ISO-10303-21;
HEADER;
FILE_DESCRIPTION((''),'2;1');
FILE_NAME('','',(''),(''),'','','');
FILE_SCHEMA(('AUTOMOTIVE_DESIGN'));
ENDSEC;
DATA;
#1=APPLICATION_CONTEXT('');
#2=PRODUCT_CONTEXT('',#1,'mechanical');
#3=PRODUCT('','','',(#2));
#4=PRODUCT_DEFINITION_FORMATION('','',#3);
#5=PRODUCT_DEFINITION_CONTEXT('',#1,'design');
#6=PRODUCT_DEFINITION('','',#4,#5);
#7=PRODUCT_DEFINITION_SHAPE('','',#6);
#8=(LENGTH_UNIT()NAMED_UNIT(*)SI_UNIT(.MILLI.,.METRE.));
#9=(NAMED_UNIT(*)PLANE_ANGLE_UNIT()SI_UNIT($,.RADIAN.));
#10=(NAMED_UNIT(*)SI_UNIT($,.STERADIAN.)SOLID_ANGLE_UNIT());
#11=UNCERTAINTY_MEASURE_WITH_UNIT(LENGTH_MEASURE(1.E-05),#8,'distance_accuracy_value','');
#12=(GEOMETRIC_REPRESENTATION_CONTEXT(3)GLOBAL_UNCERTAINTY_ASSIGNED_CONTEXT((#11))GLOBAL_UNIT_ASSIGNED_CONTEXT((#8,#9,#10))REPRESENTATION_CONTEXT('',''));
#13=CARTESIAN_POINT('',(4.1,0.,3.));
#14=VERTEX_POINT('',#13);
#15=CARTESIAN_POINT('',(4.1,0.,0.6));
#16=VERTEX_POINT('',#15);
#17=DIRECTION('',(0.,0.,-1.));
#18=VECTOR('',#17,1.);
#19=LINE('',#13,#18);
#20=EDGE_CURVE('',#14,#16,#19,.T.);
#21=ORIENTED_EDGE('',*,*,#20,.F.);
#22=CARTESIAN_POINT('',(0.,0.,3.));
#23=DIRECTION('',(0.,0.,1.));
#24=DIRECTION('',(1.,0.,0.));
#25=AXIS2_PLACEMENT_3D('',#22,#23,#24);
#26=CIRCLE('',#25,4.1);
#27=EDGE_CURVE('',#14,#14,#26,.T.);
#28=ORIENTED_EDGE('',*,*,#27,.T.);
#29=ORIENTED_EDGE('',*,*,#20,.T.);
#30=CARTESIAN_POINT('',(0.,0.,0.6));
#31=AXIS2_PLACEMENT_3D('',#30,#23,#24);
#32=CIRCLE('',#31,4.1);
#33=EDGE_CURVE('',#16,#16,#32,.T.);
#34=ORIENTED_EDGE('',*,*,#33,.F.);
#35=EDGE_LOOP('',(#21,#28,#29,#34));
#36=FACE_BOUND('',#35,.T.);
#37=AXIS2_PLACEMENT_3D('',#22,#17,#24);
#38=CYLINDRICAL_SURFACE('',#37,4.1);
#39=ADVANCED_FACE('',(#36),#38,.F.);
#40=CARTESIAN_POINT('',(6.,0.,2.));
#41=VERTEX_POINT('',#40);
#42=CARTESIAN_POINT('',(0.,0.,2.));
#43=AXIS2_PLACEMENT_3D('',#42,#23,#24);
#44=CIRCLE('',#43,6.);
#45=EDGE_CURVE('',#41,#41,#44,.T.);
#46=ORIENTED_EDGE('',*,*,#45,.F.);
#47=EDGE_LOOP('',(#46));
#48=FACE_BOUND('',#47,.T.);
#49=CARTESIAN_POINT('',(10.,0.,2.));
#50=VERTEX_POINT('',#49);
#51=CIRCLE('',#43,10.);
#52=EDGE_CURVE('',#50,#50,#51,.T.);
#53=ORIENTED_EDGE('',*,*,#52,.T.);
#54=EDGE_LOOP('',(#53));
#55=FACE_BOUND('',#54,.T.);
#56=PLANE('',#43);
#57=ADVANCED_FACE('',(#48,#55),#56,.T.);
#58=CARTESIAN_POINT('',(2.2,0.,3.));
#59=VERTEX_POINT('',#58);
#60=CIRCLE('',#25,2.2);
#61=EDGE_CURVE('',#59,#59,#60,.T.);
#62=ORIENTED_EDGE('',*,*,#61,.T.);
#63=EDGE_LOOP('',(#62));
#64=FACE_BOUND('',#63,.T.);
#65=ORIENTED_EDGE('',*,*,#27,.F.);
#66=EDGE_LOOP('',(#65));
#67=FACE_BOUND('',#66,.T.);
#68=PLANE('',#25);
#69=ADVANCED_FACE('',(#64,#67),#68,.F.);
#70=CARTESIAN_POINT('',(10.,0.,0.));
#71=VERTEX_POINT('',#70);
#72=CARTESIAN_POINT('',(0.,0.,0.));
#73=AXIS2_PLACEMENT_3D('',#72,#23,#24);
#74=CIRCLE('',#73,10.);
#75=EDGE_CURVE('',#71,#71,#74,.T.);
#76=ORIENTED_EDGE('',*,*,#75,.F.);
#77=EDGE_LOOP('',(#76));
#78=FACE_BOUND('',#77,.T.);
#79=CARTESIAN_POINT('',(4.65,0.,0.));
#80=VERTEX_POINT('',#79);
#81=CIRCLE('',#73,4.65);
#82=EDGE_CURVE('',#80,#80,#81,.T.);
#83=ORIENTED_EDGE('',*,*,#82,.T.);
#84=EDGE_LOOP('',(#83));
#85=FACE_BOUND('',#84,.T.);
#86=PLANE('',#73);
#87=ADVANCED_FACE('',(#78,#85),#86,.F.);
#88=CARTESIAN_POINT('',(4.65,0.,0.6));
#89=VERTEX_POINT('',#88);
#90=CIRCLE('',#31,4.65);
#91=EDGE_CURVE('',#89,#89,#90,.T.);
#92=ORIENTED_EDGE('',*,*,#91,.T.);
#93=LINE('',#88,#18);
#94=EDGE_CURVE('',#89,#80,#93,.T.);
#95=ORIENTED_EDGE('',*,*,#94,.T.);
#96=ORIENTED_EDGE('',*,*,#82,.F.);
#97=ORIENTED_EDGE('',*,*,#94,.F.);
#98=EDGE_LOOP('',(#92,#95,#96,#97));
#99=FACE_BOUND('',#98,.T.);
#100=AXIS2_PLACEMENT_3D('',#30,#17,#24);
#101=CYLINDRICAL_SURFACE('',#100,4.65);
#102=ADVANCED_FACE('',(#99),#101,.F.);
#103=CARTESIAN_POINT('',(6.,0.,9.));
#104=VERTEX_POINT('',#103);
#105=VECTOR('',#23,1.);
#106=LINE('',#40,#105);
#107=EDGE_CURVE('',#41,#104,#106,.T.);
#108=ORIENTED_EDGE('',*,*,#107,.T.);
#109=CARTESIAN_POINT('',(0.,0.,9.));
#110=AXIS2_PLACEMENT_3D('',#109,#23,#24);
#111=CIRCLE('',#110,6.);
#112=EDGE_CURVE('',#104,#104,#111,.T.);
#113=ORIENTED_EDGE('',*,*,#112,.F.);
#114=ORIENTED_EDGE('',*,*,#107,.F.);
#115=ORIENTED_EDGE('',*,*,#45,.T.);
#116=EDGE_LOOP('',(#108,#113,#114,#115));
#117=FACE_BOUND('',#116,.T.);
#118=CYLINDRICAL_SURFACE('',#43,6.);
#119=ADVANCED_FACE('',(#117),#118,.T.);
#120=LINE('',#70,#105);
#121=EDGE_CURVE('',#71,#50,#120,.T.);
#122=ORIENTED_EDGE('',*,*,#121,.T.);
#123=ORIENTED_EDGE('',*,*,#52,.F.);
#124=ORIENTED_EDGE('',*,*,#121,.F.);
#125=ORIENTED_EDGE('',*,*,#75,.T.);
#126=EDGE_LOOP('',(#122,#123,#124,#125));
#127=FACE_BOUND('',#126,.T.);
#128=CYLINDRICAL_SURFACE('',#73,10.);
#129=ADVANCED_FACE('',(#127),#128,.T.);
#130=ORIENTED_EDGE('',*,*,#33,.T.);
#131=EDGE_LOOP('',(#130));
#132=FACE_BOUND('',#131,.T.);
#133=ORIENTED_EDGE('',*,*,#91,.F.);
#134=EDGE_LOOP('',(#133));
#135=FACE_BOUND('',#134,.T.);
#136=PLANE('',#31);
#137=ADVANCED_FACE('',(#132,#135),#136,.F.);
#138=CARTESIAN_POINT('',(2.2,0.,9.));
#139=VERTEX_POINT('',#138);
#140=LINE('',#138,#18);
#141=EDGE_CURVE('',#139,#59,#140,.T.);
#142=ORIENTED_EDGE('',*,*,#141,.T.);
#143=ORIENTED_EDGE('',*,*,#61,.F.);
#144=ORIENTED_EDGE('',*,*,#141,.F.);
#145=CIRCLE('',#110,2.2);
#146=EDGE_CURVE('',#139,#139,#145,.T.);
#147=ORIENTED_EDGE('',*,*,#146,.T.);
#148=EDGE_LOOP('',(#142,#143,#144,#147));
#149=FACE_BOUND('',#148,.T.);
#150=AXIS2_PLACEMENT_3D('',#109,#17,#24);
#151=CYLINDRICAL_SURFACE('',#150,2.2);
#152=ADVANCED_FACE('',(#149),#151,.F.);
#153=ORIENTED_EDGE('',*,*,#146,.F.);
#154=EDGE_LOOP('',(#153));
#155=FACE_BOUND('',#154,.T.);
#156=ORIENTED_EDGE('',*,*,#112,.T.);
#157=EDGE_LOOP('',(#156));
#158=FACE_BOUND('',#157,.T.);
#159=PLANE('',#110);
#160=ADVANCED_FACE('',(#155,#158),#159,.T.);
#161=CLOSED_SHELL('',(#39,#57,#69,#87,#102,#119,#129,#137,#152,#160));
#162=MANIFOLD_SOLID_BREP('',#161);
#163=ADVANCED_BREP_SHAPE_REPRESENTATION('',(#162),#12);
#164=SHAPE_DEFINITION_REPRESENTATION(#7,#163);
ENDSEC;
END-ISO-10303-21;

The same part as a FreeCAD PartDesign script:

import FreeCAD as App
import Part
import Sketcher
from FreeCAD import Vector
Q = App.Units.Quantity


def add_polygon(sketch, points):
    """Adds a closed chain of lines whose ends are joined by coincident constraints."""
    first, n = sketch.GeometryCount, len(points)
    for a, b in zip(points, points[1:] + points[:1]):
        sketch.addGeometry(Part.LineSegment(App.Vector(*a, 0), App.Vector(*b, 0)), False)
    for i in range(n):
        sketch.addConstraint(Sketcher.Constraint("Coincident", first + i, 2, first + (i + 1) % n, 1))

doc = App.newDocument("Part")
body = doc.addObject("PartDesign::Body", "Body")

# Sketch on XZ plane
sketch1 = doc.addObject("Sketcher::SketchObject", "Sketch")
body.addObject(sketch1)
sketch1.AttachmentSupport = (doc.XZ_Plane, [""])
sketch1.MapMode = "FlatFace"
add_polygon(sketch1, [(4.7, 0), (10, 0), (10, 2), (6, 2), (6, 9), (2.2, 9), (2.2, 3), (4.1, 3), (4.1, 0.6), (4.7, 0.6)])  # lines 0-9
sketch1.addConstraint(Sketcher.Constraint("Horizontal", 0))
sketch1.addConstraint(Sketcher.Constraint("Vertical", 1))
sketch1.addConstraint(Sketcher.Constraint("Horizontal", 2))
sketch1.addConstraint(Sketcher.Constraint("Vertical", 3))
sketch1.addConstraint(Sketcher.Constraint("Horizontal", 4))
sketch1.addConstraint(Sketcher.Constraint("Vertical", 5))
sketch1.addConstraint(Sketcher.Constraint("Horizontal", 6))
sketch1.addConstraint(Sketcher.Constraint("Vertical", 7))
sketch1.addConstraint(Sketcher.Constraint("Horizontal", 8))
sketch1.addConstraint(Sketcher.Constraint("Vertical", 9))
sketch1.addConstraint(Sketcher.Constraint("PointOnObject", 0, 2, -1))
sketch1.addConstraint(Sketcher.Constraint("DistanceX", 2, 2, 2, 1, Q("4 mm")))
sketch1.addConstraint(Sketcher.Constraint("DistanceY", 1, 1, 1, 2, Q("2 mm")))
sketch1.addConstraint(Sketcher.Constraint("DistanceY", 3, 1, 3, 2, Q("7 mm")))
sketch1.addConstraint(Sketcher.Constraint("DistanceY", 5, 2, 5, 1, Q("6 mm")))
sketch1.addConstraint(Sketcher.Constraint("DistanceX", 4, 2, 4, 1, Q("3.8 mm")))
sketch1.addConstraint(Sketcher.Constraint("DistanceX", 6, 1, 6, 2, Q("1.9 mm")))
sketch1.addConstraint(Sketcher.Constraint("DistanceY", 7, 2, 7, 1, Q("2.4 mm")))
sketch1.addConstraint(Sketcher.Constraint("DistanceX", -1, 1, 0, 2, Q("10 mm")))
sketch1.addConstraint(Sketcher.Constraint("DistanceX", 0, 1, 0, 2, Q("5.35 mm")))
revolution = doc.addObject("PartDesign::Revolution", "Revolution")
body.addObject(revolution)
revolution.Profile = sketch1
revolution.ReferenceAxis = (sketch1, ["V_Axis"])
revolution.Angle = 360

doc.recompute()
